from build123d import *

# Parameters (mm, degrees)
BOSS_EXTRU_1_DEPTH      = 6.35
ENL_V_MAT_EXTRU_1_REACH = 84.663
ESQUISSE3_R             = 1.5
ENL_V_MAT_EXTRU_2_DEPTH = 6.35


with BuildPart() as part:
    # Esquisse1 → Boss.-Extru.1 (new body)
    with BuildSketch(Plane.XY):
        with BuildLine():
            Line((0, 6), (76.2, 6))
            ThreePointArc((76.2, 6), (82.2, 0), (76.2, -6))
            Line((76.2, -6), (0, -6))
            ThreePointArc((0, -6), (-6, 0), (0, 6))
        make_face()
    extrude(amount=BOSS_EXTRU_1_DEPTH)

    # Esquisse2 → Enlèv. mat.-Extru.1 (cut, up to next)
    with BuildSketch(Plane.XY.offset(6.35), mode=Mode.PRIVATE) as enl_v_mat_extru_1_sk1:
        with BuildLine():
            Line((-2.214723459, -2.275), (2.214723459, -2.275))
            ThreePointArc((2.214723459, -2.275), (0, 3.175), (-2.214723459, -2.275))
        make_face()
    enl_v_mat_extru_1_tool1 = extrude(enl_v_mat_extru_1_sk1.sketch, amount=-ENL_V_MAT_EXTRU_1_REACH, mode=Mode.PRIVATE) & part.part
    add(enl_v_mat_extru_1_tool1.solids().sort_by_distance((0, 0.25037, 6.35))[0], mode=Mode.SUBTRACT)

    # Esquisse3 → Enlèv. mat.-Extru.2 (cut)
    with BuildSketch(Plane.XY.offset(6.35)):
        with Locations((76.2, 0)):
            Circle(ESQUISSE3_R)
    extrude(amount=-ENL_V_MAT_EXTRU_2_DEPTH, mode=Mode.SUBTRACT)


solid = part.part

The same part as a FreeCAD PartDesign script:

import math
import FreeCAD as App
import Part
import Sketcher

V = App.Vector
Q = App.Units.Quantity

doc = App.newDocument("Part")
body = doc.addObject("PartDesign::Body", "Body")

# Sketch on XY plane
sketch1 = body.newObject("Sketcher::SketchObject", "Sketch")
sketch1.AttachmentSupport = (doc.getObject("XY_Plane"), [""])
sketch1.MapMode = "FlatFace"
sketch1.addGeometry([
    Part.LineSegment(V(76.2, 6, 0), V(0, 6, 0)),
    Part.ArcOfCircle(Part.Circle(V(0, 0, 0), V(0, 0, 1), 6), math.radians(90), math.radians(270)),
    Part.LineSegment(V(0, -6, 0), V(76.2, -6, 0)),
    Part.ArcOfCircle(Part.Circle(V(76.2, 0, 0), V(0, 0, 1), 6), math.radians(-90), math.radians(90)),
], False)
sketch1.addConstraint([
    Sketcher.Constraint("Tangent", 0, 2, 1, 1),
    Sketcher.Constraint("Tangent", 1, 2, 2, 1),
    Sketcher.Constraint("Tangent", 2, 2, 3, 1),
    Sketcher.Constraint("Tangent", 3, 2, 0, 1),
    Sketcher.Constraint("Horizontal", 0),
    Sketcher.Constraint("Horizontal", 2),
    Sketcher.Constraint("Coincident", 1, 3, -1, 1),
    Sketcher.Constraint("Radius", 1, Q("6 mm")),
    Sketcher.Constraint("DistanceX", 0, 2, 0, 1, Q("76.2 mm")),
])
pad1 = body.newObject("PartDesign::Pad", "Pad")
pad1.Profile = sketch1
pad1.Length = 6.35

# Sketch on XY plane
sketch2 = body.newObject("Sketcher::SketchObject", "Sketch001")
sketch2.AttachmentSupport = (doc.getObject("XY_Plane"), [""])
sketch2.MapMode = "FlatFace"
sketch2.AttachmentOffset = App.Placement(V(0, 0, 6.35), App.Rotation())
sketch2.addGeometry([
    Part.LineSegment(V(-2.214723, -2.275, 0), V(2.214723, -2.275, 0)),
    Part.ArcOfCircle(Part.Circle(V(0, 0, 0), V(0, 0, 1), 3.175), math.radians(-45.769175), math.radians(225.769175)),
], False)
sketch2.addConstraint([
    Sketcher.Constraint("Coincident", 0, 1, 1, 2),
    Sketcher.Constraint("Coincident", 1, 1, 0, 2),
    Sketcher.Constraint("Horizontal", 0),
    Sketcher.Constraint("Coincident", 1, 3, -1, 1),
    Sketcher.Constraint("Radius", 1, Q("3.175 mm")),
    Sketcher.Constraint("DistanceY", 0, 1, -1, 1, Q("2.275 mm")),
])
pocket1 = body.newObject("PartDesign::Pocket", "Pocket")
pocket1.Profile = sketch2
pocket1.Type = "UpToFirst"

# Sketch on XY plane
sketch3 = body.newObject("Sketcher::SketchObject", "Sketch002")
sketch3.AttachmentSupport = (doc.getObject("XY_Plane"), [""])
sketch3.MapMode = "FlatFace"
sketch3.AttachmentOffset = App.Placement(V(0, 0, 6.35), App.Rotation())
sketch3.addGeometry(Part.Circle(V(76.2, 0, 0), V(0, 0, 1), 1.5), False)
sketch3.addConstraint([
    Sketcher.Constraint("PointOnObject", 0, 3, -1),
    Sketcher.Constraint("Diameter", 0, Q("3 mm")),
    Sketcher.Constraint("DistanceX", -1, 1, 0, 3, Q("76.2 mm")),
])
pocket2 = body.newObject("PartDesign::Pocket", "Pocket001")
pocket2.Profile = sketch3
pocket2.Length = 6.35

doc.recompute()
